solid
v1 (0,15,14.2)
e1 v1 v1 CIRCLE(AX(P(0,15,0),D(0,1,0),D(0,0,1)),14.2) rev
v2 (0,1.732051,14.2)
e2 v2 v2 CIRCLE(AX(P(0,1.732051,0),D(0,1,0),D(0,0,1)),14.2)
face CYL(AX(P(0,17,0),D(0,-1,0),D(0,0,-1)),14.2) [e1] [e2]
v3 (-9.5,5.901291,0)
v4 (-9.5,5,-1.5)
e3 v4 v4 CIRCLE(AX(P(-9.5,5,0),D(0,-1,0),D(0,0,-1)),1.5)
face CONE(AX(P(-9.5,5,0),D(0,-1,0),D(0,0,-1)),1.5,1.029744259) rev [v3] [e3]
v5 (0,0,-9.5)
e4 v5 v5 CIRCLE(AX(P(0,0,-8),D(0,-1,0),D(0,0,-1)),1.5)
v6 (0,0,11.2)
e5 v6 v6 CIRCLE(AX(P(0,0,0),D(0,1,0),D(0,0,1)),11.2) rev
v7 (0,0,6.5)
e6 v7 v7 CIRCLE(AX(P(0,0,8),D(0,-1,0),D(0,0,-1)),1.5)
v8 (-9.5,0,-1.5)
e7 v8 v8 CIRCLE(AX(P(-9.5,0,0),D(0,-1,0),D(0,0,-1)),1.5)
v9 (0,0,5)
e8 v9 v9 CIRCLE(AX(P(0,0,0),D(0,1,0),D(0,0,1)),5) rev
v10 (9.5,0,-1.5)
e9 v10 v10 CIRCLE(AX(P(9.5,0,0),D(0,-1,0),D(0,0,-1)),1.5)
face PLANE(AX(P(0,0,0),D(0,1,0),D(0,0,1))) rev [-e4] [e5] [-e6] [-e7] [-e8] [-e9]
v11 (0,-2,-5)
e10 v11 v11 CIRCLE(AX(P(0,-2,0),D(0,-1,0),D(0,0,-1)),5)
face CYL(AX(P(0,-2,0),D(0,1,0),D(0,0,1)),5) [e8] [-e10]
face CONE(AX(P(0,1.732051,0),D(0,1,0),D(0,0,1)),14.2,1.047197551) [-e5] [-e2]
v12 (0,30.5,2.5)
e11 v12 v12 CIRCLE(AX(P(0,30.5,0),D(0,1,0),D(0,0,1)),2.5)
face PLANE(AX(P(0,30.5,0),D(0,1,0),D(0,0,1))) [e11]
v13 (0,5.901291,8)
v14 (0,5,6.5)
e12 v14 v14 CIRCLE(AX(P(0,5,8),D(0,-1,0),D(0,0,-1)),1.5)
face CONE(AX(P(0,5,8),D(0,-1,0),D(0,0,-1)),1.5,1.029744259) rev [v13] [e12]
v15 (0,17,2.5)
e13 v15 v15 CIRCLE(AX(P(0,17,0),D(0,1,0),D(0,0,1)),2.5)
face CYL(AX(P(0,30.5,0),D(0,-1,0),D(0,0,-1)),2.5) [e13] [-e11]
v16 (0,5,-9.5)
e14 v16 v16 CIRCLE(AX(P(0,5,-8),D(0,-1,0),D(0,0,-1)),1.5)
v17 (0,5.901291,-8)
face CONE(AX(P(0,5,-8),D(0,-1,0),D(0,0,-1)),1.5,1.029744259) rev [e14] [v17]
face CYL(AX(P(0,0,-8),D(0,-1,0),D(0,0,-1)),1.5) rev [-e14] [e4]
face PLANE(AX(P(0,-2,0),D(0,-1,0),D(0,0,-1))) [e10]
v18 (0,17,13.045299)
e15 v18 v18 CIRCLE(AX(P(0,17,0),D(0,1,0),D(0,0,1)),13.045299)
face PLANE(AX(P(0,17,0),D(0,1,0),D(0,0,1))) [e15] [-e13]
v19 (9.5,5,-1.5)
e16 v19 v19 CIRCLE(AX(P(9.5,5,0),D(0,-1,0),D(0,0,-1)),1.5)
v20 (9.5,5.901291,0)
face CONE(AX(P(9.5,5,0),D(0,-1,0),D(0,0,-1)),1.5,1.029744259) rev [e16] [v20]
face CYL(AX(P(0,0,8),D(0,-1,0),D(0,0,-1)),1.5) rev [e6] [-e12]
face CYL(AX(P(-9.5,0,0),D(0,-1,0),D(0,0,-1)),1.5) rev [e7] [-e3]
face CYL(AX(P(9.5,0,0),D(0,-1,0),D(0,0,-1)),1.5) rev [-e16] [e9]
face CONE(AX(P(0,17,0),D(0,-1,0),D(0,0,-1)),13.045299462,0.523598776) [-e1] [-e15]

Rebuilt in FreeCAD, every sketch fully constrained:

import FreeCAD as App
import Part
import Sketcher


def edges_at(feature, points):
    """Names of the edges that pass closest to the given points."""
    edges = feature.Shape.Edges
    near = lambda p: min(range(len(edges)), key=lambda i: edges[i].distToShape(Part.Vertex(*p))[0])
    return sorted({f"Edge{near(p) + 1}" for p in points})

doc = App.newDocument("Part")
body = doc.addObject("PartDesign::Body", "Body")

sketch1 = body.newObject("Sketcher::SketchObject", "Sketch")
sketch1.AttachmentSupport = (doc.getObject("XZ_Plane"), [""])
sketch1.MapMode = "FlatFace"
sketch1.addGeometry(Part.Circle(App.Vector(0, 0, 0), App.Vector(0, 0, 1), 14), False)
sketch1.addConstraint([
    Sketcher.Constraint("Coincident", 0, 3, -1, 1),
    Sketcher.Constraint("Diameter", 0, 28.4),
])
pad1 = body.newObject("PartDesign::Pad", "Pad")
pad1.Profile = sketch1
pad1.Length = 17
pad1.Reversed = True

sketch2 = body.newObject("Sketcher::SketchObject", "Sketch001")
sketch2.AttachmentSupport = (doc.getObject("XZ_Plane"), [""])
sketch2.MapMode = "FlatFace"
sketch2.AttachmentOffset = App.Placement(App.Vector(0, 0, -17), App.Rotation())
sketch2.addGeometry(Part.Circle(App.Vector(0, 0, 0), App.Vector(0, 0, 1), 2.5), False)
sketch2.addConstraint([
    Sketcher.Constraint("Coincident", 0, 3, -1, 1),
    Sketcher.Constraint("Diameter", 0, 5.0),
])
pad2 = body.newObject("PartDesign::Pad", "Pad001")
pad2.Profile = sketch2
pad2.Length = 13.5
pad2.Reversed = True
doc.recompute()

chamfer = body.newObject("PartDesign::Chamfer", "Chamfer")
chamfer.Base = (pad2, edges_at(pad2, [(-14.2, 17, 0)]))
chamfer.ChamferType = "Two distances"
chamfer.Size = 2
chamfer.Size2 = 1.154701

sketch3 = body.newObject("Sketcher::SketchObject", "Sketch002")
sketch3.AttachmentSupport = (doc.getObject("XZ_Plane"), [""])
sketch3.MapMode = "FlatFace"
sketch3.addGeometry([
    Part.Circle(App.Vector(0, 8, 0), App.Vector(0, 0, 1), 1.5),
    Part.Circle(App.Vector(9.5, 0, 0), App.Vector(0, 0, 1), 1.5),
    Part.Circle(App.Vector(0, -8, 0), App.Vector(0, 0, 1), 1.5),
    Part.Circle(App.Vector(-9.5, 0, 0), App.Vector(0, 0, 1), 1.5),
], False)
sketch3.addConstraint([
    Sketcher.Constraint("Equal", 0, 1),
    Sketcher.Constraint("Equal", 1, 2),
    Sketcher.Constraint("Equal", 2, 3),
    Sketcher.Constraint("Symmetric", 0, 3, 2, 3, -1, 1),
    Sketcher.Constraint("Symmetric", 1, 3, 3, 3, -1, 1),
    Sketcher.Constraint("PointOnObject", 0, 3, -2),
    Sketcher.Constraint("PointOnObject", 1, 3, -1),
    Sketcher.Constraint("Diameter", 0, 3.0),
    Sketcher.Constraint("DistanceY", -1, 1, 0, 3, 8.0),
    Sketcher.Constraint("DistanceX", 3, 3, 1, 3, 19.0),
])
doc.recompute()
hole = body.newObject("PartDesign::Hole", "Hole")
hole.Profile = sketch3
hole.ThreadType = "None"
hole.Diameter = 3
hole.DepthType = "Dimension"
hole.Depth = 5
hole.DrillPoint = "Angled"
hole.DrillPointAngle = 118
doc.recompute()

chamfer2 = body.newObject("PartDesign::Chamfer", "Chamfer001")
chamfer2.Base = (hole, edges_at(hole, [(-14.2, 0, 0)]))
chamfer2.ChamferType = "Two distances"
chamfer2.Size = 3
chamfer2.Size2 = 1.732051
chamfer2.FlipDirection = True

sketch4 = body.newObject("Sketcher::SketchObject", "Sketch003")
sketch4.AttachmentSupport = (doc.getObject("XZ_Plane"), [""])
sketch4.MapMode = "FlatFace"
sketch4.addGeometry(Part.Circle(App.Vector(0, 0, 0), App.Vector(0, 0, 1), 5), False)
sketch4.addConstraint([
    Sketcher.Constraint("Coincident", 0, 3, -1, 1),
    Sketcher.Constraint("Diameter", 0, 10.0),
])
pad3 = body.newObject("PartDesign::Pad", "Pad002")
pad3.Profile = sketch4
pad3.Length = 2

doc.recompute()
